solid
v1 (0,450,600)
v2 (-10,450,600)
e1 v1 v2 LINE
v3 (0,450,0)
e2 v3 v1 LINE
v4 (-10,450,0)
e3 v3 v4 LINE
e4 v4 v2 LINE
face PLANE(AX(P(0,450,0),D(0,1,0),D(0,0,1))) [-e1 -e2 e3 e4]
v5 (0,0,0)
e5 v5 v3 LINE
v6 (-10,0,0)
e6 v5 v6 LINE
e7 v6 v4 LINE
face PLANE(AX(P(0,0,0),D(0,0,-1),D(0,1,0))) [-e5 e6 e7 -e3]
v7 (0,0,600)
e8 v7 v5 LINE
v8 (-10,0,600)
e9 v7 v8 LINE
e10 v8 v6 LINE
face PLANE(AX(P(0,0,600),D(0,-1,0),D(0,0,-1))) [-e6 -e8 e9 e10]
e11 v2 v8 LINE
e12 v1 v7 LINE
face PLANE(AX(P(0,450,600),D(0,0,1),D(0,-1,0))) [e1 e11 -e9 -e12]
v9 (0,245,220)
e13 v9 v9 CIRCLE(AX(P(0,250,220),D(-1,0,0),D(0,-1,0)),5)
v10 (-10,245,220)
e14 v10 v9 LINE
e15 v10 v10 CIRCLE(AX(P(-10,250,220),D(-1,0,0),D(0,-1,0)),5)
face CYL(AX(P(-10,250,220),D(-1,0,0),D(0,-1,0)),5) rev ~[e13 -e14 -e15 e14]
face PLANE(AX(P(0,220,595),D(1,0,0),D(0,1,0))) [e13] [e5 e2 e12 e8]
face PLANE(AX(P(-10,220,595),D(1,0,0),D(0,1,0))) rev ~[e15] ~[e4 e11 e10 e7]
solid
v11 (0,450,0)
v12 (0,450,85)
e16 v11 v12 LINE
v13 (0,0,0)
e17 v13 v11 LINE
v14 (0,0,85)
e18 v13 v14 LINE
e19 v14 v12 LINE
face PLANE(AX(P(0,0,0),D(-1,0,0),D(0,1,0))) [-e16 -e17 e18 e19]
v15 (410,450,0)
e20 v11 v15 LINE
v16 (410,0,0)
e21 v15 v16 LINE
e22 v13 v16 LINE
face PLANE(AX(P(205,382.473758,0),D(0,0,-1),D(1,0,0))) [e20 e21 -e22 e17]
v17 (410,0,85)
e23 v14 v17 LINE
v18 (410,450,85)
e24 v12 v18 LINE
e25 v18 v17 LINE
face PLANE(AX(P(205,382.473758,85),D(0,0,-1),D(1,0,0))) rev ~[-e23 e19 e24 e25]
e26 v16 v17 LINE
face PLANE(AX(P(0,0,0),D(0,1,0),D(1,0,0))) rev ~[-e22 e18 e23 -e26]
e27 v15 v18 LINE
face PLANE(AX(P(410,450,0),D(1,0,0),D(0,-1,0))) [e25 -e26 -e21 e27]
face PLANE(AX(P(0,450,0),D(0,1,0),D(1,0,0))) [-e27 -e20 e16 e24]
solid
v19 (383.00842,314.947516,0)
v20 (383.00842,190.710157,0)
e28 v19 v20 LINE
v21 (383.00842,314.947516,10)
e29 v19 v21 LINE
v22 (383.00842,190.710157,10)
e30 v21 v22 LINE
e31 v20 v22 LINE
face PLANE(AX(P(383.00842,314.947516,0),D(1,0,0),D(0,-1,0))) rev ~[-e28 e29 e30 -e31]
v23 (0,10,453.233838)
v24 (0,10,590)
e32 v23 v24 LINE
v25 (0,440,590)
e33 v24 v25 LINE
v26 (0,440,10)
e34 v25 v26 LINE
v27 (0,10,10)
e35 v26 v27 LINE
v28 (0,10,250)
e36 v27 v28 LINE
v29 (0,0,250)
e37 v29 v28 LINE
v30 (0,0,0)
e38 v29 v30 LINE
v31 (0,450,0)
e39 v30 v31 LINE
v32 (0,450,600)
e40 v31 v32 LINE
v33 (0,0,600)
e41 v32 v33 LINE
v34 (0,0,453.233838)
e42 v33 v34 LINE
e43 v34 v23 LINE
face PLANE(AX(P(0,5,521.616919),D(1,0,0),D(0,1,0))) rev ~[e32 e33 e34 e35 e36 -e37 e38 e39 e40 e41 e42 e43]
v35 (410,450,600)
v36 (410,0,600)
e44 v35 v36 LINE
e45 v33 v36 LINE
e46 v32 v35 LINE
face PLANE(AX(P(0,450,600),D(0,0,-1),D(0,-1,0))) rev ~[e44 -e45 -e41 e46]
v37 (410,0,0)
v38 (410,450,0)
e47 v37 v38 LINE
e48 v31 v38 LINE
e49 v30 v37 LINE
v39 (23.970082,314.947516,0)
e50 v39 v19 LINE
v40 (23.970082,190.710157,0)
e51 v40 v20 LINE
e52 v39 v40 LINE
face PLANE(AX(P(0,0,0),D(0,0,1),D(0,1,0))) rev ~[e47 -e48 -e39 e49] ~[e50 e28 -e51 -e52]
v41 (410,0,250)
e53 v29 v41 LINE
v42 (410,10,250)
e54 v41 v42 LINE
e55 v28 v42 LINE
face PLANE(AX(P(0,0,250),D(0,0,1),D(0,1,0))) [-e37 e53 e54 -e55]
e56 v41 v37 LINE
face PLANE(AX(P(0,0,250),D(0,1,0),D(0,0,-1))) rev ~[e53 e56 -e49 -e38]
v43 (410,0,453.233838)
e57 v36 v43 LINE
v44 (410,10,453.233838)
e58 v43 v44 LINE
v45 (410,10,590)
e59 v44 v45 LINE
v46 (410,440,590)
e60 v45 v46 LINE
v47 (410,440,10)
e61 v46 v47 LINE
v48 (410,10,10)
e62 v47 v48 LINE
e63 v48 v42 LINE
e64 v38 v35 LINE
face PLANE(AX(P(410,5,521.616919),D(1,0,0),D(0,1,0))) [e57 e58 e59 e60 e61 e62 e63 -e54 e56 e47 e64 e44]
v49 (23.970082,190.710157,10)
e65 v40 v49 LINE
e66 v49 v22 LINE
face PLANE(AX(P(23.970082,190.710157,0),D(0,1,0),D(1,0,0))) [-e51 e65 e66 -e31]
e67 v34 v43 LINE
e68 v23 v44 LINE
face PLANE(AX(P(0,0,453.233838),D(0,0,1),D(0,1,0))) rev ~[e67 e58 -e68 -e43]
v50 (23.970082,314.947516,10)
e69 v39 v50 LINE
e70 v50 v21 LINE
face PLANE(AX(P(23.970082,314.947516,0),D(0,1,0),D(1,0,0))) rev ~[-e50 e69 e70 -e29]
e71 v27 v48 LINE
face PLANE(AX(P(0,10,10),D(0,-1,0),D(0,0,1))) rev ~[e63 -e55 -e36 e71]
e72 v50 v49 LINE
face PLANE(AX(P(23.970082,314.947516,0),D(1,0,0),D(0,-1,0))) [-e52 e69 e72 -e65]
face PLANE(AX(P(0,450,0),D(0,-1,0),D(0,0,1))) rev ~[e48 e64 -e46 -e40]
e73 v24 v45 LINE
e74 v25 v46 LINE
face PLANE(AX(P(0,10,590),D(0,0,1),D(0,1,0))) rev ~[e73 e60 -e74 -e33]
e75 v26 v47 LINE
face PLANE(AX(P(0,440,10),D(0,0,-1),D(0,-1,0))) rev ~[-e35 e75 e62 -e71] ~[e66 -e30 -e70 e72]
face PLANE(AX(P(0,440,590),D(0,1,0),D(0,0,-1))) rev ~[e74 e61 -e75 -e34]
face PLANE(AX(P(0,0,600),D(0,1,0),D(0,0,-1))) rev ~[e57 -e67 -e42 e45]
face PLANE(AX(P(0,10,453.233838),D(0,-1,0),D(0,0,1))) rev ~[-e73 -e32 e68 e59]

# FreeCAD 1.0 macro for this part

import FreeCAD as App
import Part
import Sketcher
Q = App.Units.Quantity


def add_polygon(sketch, points):
    """Adds a closed chain of lines whose ends are joined by coincident constraints."""
    first, n = sketch.GeometryCount, len(points)
    for a, b in zip(points, points[1:] + points[:1]):
        sketch.addGeometry(Part.LineSegment(App.Vector(*a, 0), App.Vector(*b, 0)), False)
    for i in range(n):
        sketch.addConstraint(Sketcher.Constraint("Coincident", first + i, 2, first + (i + 1) % n, 1))

doc = App.newDocument("Part")
body = doc.addObject("PartDesign::Body", "Body")

sketch1 = body.newObject("Sketcher::SketchObject", "Sketch")
sketch1.AttachmentSupport = (doc.getObject("YZ_Plane"), [""])
sketch1.MapMode = "FlatFace"
add_polygon(sketch1, [(0, 453.233838), (10, 453.233838), (10, 590), (440, 590), (440, 10), (10, 10), (10, 250), (0, 250), (0, 0), (450, 0), (450, 600), (0, 600)])
sketch1.addConstraint([
    Sketcher.Constraint("Horizontal", 0),
    Sketcher.Constraint("Vertical", 1),
    Sketcher.Constraint("Horizontal", 2),
    Sketcher.Constraint("Vertical", 3),
    Sketcher.Constraint("Horizontal", 4),
    Sketcher.Constraint("Vertical", 5),
    Sketcher.Constraint("Horizontal", 6),
    Sketcher.Constraint("Vertical", 7),
    Sketcher.Constraint("Horizontal", 8),
    Sketcher.Constraint("Vertical", 9),
    Sketcher.Constraint("Horizontal", 10),
    Sketcher.Constraint("Vertical", 11),
    Sketcher.Constraint("Coincident", 7, 2, -1, 1),
    Sketcher.Constraint("PointOnObject", 10, 2, -2),
    Sketcher.Constraint("Vertical", 1, 2, 4, 2),
    Sketcher.Constraint("DistanceX", 0, 1, 0, 2, Q("10 mm")),
    Sketcher.Constraint("DistanceX", 2, 1, 2, 2, Q("430 mm")),
    Sketcher.Constraint("DistanceX", 8, 1, 8, 2, Q("450 mm")),
    Sketcher.Constraint("DistanceY", 3, 2, 3, 1, Q("580 mm")),
    Sketcher.Constraint("DistanceY", 5, 1, 5, 2, Q("240 mm")),
    Sketcher.Constraint("DistanceY", 7, 2, 7, 1, Q("250 mm")),
    Sketcher.Constraint("DistanceY", 9, 1, 9, 2, Q("600 mm")),
    Sketcher.Constraint("DistanceY", 1, 1, 1, 2, Q("136.766162 mm")),
])
pad1 = body.newObject("PartDesign::Pad", "Pad")
pad1.Profile = sketch1
pad1.Length = 410

sketch2 = body.newObject("Sketcher::SketchObject", "Sketch001")
sketch2.AttachmentSupport = (doc.getObject("XY_Plane"), [""])
sketch2.MapMode = "FlatFace"
add_polygon(sketch2, [(23.970082, 190.710157), (23.970082, 314.947516), (383.00842, 314.947516), (383.00842, 190.710157)])
sketch2.addConstraint([
    Sketcher.Constraint("Vertical", 0),
    Sketcher.Constraint("Horizontal", 1),
    Sketcher.Constraint("Vertical", 2),
    Sketcher.Constraint("Horizontal", 3),
    Sketcher.Constraint("DistanceX", 1, 1, 1, 2, Q("359.038338 mm")),
    Sketcher.Constraint("DistanceY", 0, 1, 0, 2, Q("124.237359 mm")),
    Sketcher.Constraint("DistanceX", -1, 1, 1, 2, Q("383.00842 mm")),
    Sketcher.Constraint("DistanceY", -1, 1, 0, 2, Q("314.947516 mm")),
])
pocket1 = body.newObject("PartDesign::Pocket", "Pocket")
pocket1.Profile = sketch2
pocket1.Length = 25
pocket1.Reversed = True
body2 = doc.addObject("PartDesign::Body", "Body001")

sketch3 = body2.newObject("Sketcher::SketchObject", "Sketch002")
sketch3.AttachmentSupport = (doc.getObject("YZ_Plane001"), [""])
sketch3.MapMode = "FlatFace"
add_polygon(sketch3, [(0, 600), (0, 0), (450, 0), (450, 600)])
sketch3.addConstraint([
    Sketcher.Constraint("Vertical", 0),
    Sketcher.Constraint("Horizontal", 1),
    Sketcher.Constraint("Vertical", 2),
    Sketcher.Constraint("Horizontal", 3),
    Sketcher.Constraint("Coincident", 0, 2, -1, 1),
    Sketcher.Constraint("DistanceX", 1, 1, 1, 2, Q("450 mm")),
    Sketcher.Constraint("DistanceY", 0, 2, 0, 1, Q("600 mm")),
])
pad2 = body2.newObject("PartDesign::Pad", "Pad001")
pad2.Profile = sketch3
pad2.Length = 10
pad2.Reversed = True

sketch4 = body2.newObject("Sketcher::SketchObject", "Sketch003")
sketch4.AttachmentSupport = (doc.getObject("YZ_Plane001"), [""])
sketch4.MapMode = "FlatFace"
sketch4.AttachmentOffset = App.Placement(App.Vector(0, 0, -10), App.Rotation())
sketch4.addGeometry(Part.Circle(App.Vector(250, 220, 0), App.Vector(0, 0, 1), 5), False)
sketch4.addConstraint([
    Sketcher.Constraint("Diameter", 0, Q("10 mm")),
    Sketcher.Constraint("DistanceX", -1, 1, 0, 3, Q("250 mm")),
    Sketcher.Constraint("DistanceY", -1, 1, 0, 3, Q("220 mm")),
])
pocket2 = body2.newObject("PartDesign::Pocket", "Pocket001")
pocket2.Profile = sketch4
pocket2.Length = 25
pocket2.Reversed = True
body3 = doc.addObject("PartDesign::Body", "Body002")

sketch5 = body3.newObject("Sketcher::SketchObject", "Sketch004")
sketch5.AttachmentSupport = (doc.getObject("XY_Plane002"), [""])
sketch5.MapMode = "FlatFace"
add_polygon(sketch5, [(0, 450), (410, 450), (410, 0), (0, 0)])
sketch5.addConstraint([
    Sketcher.Constraint("Horizontal", 0),
    Sketcher.Constraint("Vertical", 1),
    Sketcher.Constraint("Horizontal", 2),
    Sketcher.Constraint("Vertical", 3),
    Sketcher.Constraint("Coincident", 2, 2, -1, 1),
    Sketcher.Constraint("DistanceX", 0, 1, 0, 2, Q("410 mm")),
    Sketcher.Constraint("DistanceY", 1, 2, 1, 1, Q("450 mm")),
])
pad3 = body3.newObject("PartDesign::Pad", "Pad002")
pad3.Profile = sketch5
pad3.Length = 85

doc.recompute()
